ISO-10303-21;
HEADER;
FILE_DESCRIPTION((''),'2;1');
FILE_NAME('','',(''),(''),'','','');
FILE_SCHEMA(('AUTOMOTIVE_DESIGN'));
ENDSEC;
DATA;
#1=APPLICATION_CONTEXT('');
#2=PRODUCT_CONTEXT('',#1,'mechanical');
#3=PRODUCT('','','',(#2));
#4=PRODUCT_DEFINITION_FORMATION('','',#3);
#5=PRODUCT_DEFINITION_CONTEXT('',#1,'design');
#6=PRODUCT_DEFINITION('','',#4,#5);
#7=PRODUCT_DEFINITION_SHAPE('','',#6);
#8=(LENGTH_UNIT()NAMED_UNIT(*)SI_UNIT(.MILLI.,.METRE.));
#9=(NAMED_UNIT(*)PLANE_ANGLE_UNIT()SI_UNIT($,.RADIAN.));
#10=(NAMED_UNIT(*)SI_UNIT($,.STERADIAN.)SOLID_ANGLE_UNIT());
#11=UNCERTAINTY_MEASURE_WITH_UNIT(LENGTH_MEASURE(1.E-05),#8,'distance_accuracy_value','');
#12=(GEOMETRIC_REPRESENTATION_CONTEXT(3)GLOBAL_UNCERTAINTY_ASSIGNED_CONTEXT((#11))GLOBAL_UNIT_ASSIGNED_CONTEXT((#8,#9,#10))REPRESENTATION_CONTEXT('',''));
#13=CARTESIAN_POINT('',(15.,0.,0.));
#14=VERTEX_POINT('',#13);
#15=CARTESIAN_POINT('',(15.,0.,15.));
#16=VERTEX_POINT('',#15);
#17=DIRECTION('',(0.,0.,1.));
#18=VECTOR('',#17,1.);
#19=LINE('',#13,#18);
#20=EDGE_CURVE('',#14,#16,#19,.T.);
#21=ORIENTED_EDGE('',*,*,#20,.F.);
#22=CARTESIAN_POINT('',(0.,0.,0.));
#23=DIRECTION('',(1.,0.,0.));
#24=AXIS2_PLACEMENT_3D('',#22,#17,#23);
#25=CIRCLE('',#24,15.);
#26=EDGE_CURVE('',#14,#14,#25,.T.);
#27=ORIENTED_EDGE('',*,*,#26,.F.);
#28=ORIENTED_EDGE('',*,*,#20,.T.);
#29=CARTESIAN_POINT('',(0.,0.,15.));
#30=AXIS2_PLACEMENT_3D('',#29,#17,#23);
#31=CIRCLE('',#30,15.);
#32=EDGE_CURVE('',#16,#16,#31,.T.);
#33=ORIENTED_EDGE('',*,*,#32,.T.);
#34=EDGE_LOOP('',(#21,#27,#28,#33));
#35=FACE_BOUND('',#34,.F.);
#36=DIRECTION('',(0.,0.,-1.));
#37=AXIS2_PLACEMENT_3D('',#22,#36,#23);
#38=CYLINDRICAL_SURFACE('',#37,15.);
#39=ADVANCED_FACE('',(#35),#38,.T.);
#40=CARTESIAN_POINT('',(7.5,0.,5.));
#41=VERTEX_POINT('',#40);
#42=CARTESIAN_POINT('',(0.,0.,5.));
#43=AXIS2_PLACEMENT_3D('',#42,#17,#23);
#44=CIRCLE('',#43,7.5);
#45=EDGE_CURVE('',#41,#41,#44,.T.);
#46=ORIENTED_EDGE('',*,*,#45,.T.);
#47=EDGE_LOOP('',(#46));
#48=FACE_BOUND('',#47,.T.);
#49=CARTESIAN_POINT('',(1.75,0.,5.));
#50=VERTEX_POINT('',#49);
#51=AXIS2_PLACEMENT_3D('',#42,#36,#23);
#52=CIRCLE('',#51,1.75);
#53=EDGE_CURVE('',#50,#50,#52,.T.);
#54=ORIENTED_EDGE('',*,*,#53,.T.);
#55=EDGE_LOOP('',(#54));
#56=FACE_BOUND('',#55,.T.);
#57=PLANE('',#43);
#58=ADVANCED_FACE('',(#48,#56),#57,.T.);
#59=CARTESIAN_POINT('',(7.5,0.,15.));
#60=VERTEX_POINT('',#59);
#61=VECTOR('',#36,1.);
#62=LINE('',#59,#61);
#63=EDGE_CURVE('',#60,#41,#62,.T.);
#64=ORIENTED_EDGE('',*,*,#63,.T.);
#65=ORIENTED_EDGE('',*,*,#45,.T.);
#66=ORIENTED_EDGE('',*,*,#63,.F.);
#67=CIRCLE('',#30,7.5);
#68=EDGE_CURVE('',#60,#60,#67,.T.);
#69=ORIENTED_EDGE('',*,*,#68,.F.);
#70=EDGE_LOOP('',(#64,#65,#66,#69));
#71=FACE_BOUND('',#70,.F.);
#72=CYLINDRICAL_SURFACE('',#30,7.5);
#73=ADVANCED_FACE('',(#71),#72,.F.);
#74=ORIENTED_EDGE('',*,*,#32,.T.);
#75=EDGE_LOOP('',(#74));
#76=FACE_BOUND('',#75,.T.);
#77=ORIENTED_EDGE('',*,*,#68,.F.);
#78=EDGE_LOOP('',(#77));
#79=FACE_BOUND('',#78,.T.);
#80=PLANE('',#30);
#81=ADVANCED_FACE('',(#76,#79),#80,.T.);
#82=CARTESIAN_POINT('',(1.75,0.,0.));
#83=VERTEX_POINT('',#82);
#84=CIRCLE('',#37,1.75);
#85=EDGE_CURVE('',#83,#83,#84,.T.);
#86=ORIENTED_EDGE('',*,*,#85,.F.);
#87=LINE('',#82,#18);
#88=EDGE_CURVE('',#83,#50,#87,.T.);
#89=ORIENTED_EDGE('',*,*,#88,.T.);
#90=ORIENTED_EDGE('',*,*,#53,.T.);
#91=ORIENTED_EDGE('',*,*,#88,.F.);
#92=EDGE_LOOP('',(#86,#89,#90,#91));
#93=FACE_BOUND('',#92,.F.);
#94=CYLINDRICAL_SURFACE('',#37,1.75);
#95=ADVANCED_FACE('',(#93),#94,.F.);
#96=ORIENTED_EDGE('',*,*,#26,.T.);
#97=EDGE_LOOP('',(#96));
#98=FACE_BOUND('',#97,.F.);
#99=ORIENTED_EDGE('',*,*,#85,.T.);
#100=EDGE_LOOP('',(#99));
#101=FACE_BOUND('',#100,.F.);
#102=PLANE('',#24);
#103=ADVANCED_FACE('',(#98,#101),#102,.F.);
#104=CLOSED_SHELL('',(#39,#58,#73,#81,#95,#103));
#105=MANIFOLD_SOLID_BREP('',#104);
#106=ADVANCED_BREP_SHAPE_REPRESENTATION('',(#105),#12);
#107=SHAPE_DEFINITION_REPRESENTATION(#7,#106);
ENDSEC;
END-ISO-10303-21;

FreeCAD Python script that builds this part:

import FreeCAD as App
import Part
import Sketcher

doc = App.newDocument("Part")
body = doc.addObject("PartDesign::Body", "Body")

# Sketch on XY plane
sketch1 = body.newObject("Sketcher::SketchObject", "Sketch")
sketch1.AttachmentSupport = (doc.getObject("XY_Plane"), [""])
sketch1.MapMode = "FlatFace"
sketch1.addGeometry(Part.Circle(App.Vector(0, 0, 0), App.Vector(0, 0, 1), 15), False)
sketch1.addConstraint([
    Sketcher.Constraint("Coincident", 0, 3, -1, 1),
    Sketcher.Constraint("Diameter", 0, 30.0),
])
pad1 = body.newObject("PartDesign::Pad", "Pad")
pad1.Profile = sketch1
pad1.Length = 15

# Sketch on XY plane
sketch2 = body.newObject("Sketcher::SketchObject", "Sketch001")
sketch2.AttachmentSupport = (doc.getObject("XY_Plane"), [""])
sketch2.MapMode = "FlatFace"
sketch2.AttachmentOffset = App.Placement(App.Vector(0, 0, 15), App.Rotation())
sketch2.addGeometry(Part.Circle(App.Vector(0, 0, 0), App.Vector(0, 0, 1), 8), False)
sketch2.addConstraint([
    Sketcher.Constraint("Coincident", 0, 3, -1, 1),
    Sketcher.Constraint("Diameter", 0, 15.0),
])
pocket1 = body.newObject("PartDesign::Pocket", "Pocket")
pocket1.Profile = sketch2
pocket1.Length = 10

# Sketch on XY plane
sketch3 = body.newObject("Sketcher::SketchObject", "Sketch002")
sketch3.AttachmentSupport = (doc.getObject("XY_Plane"), [""])
sketch3.MapMode = "FlatFace"
sketch3.addGeometry(Part.Circle(App.Vector(0, 0, 0), App.Vector(0, 0, 1), 1.8), False)
sketch3.addConstraint([
    Sketcher.Constraint("Coincident", 0, 3, -1, 1),
    Sketcher.Constraint("Diameter", 0, 3.5),
])
pocket2 = body.newObject("PartDesign::Pocket", "Pocket001")
pocket2.Profile = sketch3
pocket2.Length = 10
pocket2.Reversed = True

doc.recompute()
